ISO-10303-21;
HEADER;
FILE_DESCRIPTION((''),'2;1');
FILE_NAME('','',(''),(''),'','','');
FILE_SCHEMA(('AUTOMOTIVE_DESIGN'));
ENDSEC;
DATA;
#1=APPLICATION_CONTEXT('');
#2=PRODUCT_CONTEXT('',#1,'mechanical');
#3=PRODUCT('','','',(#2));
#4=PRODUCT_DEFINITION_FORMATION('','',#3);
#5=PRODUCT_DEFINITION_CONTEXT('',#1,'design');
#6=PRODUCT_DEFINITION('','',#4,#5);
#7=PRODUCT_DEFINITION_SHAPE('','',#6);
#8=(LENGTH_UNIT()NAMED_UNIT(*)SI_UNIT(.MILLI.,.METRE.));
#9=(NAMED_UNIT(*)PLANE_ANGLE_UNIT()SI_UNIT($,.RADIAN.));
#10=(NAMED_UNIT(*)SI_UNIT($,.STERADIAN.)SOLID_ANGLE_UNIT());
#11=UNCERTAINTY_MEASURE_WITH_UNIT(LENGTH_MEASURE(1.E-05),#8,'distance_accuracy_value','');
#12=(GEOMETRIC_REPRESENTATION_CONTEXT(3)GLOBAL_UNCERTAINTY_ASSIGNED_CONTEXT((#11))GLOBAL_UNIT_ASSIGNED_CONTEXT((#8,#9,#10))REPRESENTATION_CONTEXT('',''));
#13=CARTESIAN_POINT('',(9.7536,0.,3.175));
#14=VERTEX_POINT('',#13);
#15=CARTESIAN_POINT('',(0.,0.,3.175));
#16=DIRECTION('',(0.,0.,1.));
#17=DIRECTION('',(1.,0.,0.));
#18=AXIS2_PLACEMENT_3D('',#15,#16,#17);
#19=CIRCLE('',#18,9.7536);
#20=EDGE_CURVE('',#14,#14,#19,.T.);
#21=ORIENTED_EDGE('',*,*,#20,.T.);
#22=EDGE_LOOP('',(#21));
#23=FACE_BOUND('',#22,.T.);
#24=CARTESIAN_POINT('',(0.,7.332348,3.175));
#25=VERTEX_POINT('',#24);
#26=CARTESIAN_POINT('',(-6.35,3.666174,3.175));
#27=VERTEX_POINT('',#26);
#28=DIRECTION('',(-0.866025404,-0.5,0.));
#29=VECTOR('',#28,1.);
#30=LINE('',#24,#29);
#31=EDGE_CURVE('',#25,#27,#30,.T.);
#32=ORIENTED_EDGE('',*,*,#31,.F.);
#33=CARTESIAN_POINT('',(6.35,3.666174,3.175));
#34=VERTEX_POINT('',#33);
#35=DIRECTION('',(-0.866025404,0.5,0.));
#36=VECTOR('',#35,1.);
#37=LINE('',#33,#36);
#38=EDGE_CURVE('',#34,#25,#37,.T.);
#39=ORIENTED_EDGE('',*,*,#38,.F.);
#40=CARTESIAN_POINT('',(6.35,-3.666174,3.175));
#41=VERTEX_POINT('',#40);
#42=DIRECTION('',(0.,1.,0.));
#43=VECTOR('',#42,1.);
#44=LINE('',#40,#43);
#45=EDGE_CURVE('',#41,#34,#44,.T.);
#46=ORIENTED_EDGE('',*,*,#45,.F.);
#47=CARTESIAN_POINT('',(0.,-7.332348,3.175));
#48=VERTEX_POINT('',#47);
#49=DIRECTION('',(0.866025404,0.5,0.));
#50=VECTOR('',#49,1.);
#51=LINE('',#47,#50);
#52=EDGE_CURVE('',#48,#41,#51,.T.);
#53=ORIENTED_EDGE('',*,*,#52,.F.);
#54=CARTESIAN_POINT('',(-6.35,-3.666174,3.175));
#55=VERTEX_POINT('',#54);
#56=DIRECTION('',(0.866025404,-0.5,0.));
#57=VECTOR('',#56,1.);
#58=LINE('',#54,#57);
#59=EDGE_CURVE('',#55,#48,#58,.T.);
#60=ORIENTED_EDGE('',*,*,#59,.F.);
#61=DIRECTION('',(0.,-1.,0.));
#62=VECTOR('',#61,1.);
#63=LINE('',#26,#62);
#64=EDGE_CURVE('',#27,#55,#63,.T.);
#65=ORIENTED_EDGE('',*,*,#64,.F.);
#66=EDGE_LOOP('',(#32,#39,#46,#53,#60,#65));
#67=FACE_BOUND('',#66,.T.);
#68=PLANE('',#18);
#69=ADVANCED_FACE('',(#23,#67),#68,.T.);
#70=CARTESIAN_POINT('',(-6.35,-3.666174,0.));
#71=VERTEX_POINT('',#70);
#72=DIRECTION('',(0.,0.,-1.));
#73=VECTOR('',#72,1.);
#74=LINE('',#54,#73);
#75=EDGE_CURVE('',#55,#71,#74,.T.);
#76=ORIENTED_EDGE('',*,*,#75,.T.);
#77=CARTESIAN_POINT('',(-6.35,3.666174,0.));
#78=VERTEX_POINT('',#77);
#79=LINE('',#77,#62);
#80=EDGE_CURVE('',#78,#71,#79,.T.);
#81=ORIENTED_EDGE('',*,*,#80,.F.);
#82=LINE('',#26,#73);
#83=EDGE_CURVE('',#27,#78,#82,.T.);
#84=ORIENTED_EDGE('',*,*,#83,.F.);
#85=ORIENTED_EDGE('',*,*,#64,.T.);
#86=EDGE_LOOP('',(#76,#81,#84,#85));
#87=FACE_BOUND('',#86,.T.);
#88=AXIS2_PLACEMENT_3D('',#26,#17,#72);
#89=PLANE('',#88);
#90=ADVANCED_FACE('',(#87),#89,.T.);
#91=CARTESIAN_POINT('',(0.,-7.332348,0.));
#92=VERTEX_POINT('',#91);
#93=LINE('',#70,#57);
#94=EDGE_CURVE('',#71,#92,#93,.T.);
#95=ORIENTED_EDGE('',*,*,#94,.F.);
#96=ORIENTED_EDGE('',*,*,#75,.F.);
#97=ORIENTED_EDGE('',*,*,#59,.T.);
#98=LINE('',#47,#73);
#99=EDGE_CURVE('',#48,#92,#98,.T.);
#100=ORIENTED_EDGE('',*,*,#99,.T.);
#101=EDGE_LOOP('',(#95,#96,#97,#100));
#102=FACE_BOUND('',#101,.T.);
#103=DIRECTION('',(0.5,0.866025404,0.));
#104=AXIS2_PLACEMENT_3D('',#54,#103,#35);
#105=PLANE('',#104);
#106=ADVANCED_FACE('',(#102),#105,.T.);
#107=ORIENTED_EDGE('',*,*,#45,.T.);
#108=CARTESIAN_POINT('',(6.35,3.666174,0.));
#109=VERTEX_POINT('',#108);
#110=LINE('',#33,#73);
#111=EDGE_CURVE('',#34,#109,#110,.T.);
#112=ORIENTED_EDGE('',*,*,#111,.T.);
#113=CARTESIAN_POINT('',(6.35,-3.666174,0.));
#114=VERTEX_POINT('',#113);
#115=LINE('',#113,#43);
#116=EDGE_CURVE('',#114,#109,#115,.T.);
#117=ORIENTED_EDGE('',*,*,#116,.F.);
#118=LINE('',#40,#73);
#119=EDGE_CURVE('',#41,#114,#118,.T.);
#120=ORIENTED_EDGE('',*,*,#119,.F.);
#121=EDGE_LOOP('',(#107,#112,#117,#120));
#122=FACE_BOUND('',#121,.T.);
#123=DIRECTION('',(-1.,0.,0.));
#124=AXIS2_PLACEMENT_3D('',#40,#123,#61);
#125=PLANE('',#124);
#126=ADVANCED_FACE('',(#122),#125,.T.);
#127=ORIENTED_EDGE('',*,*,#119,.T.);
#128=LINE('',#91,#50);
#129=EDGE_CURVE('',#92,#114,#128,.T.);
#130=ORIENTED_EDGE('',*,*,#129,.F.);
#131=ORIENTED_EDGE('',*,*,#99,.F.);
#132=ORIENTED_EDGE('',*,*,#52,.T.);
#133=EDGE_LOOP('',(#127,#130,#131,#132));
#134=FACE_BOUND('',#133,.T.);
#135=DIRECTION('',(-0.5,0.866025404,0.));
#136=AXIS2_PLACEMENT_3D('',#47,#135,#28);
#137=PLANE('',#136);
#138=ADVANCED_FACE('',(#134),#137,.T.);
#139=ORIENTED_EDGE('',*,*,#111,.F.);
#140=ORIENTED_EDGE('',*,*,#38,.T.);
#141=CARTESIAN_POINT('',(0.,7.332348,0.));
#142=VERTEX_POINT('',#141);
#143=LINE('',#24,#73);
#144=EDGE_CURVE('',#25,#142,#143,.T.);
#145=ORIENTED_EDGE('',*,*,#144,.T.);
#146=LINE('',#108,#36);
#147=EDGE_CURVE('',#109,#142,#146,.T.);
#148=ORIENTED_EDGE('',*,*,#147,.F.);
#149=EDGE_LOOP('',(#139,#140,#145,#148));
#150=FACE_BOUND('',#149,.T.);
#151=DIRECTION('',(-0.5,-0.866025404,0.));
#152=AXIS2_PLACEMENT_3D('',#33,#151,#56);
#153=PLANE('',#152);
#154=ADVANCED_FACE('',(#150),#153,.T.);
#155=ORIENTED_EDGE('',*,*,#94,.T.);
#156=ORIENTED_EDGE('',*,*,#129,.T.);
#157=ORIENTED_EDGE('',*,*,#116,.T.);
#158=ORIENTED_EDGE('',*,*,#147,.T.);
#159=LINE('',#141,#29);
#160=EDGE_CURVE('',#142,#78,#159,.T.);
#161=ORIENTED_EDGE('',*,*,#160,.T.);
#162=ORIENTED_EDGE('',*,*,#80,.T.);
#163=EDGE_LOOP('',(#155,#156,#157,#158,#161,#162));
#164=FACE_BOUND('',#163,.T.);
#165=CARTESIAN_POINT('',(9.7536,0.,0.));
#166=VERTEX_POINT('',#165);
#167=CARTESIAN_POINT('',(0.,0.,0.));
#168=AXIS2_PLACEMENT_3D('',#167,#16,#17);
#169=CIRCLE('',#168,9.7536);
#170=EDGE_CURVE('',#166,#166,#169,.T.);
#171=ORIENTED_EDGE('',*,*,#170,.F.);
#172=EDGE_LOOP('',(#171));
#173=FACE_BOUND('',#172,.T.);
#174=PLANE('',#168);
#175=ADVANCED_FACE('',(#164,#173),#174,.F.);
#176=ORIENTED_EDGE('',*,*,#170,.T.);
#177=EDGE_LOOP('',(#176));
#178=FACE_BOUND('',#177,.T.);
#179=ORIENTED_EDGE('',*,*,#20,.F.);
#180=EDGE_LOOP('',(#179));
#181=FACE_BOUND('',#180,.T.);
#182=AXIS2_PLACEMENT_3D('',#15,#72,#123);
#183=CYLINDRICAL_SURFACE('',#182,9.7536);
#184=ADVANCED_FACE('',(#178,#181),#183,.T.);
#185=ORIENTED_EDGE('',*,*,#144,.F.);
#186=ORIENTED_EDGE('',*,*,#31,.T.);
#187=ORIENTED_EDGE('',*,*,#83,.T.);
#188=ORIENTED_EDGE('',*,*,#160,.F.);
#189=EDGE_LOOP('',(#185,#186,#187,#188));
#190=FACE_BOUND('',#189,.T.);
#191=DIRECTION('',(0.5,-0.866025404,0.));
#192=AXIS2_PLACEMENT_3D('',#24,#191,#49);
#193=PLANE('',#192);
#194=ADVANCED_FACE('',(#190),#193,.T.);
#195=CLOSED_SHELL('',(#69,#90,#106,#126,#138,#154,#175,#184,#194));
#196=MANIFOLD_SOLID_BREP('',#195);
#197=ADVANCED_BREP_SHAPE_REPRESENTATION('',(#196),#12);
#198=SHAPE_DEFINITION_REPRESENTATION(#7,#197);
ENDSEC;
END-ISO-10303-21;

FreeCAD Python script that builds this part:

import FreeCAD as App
import Part
import Sketcher

V = App.Vector
Q = App.Units.Quantity


def add_polygon(sketch, points):
    """Adds a closed chain of lines whose ends are joined by coincident constraints."""
    first, n = sketch.GeometryCount, len(points)
    for a, b in zip(points, points[1:] + points[:1]):
        sketch.addGeometry(Part.LineSegment(App.Vector(*a, 0), App.Vector(*b, 0)), False)
    for i in range(n):
        sketch.addConstraint(Sketcher.Constraint("Coincident", first + i, 2, first + (i + 1) % n, 1))

doc = App.newDocument("Part")
body = doc.addObject("PartDesign::Body", "Body")

sketch1 = doc.addObject("Sketcher::SketchObject", "Sketch")
body.addObject(sketch1)
sketch1.AttachmentSupport = (doc.XY_Plane, [""])
sketch1.MapMode = "FlatFace"
sketch1.addGeometry(Part.Circle(V(0, 0, 0), V(0, 0, 1), 9.7536), False)
add_polygon(sketch1, [(-6.35, -3.666174), (-6.35, 3.666174), (0, 7.332348), (6.35, 3.666174), (6.35, -3.666174), (0, -7.332348)])
sketch1.addConstraint([
    Sketcher.Constraint("Vertical", 1),
    Sketcher.Constraint("Vertical", 4),
    Sketcher.Constraint("Coincident", 0, 3, -1, 1),
    Sketcher.Constraint("Symmetric", 1, 2, 4, 2, -1, 1),
    Sketcher.Constraint("Symmetric", 2, 2, 5, 2, -1, 1),
    Sketcher.Constraint("PointOnObject", 2, 2, -2),
    Sketcher.Constraint("Parallel", 3, 6),
    Sketcher.Constraint("Horizontal", 1, 2, 3, 2),
    Sketcher.Constraint("Diameter", 0, Q("0.768 in")),
    Sketcher.Constraint("Angle", 2, Q("30 deg")),
    Sketcher.Constraint("DistanceX", 1, 2, 3, 2, Q("0.5 in")),
    Sketcher.Constraint("DistanceY", 1, 1, 1, 2, Q("7.332348 mm")),
])
pad1 = doc.addObject("PartDesign::Pad", "Pad")
body.addObject(pad1)
pad1.Profile = sketch1
pad1.Length = Q("0.125 in")

doc.recompute()
